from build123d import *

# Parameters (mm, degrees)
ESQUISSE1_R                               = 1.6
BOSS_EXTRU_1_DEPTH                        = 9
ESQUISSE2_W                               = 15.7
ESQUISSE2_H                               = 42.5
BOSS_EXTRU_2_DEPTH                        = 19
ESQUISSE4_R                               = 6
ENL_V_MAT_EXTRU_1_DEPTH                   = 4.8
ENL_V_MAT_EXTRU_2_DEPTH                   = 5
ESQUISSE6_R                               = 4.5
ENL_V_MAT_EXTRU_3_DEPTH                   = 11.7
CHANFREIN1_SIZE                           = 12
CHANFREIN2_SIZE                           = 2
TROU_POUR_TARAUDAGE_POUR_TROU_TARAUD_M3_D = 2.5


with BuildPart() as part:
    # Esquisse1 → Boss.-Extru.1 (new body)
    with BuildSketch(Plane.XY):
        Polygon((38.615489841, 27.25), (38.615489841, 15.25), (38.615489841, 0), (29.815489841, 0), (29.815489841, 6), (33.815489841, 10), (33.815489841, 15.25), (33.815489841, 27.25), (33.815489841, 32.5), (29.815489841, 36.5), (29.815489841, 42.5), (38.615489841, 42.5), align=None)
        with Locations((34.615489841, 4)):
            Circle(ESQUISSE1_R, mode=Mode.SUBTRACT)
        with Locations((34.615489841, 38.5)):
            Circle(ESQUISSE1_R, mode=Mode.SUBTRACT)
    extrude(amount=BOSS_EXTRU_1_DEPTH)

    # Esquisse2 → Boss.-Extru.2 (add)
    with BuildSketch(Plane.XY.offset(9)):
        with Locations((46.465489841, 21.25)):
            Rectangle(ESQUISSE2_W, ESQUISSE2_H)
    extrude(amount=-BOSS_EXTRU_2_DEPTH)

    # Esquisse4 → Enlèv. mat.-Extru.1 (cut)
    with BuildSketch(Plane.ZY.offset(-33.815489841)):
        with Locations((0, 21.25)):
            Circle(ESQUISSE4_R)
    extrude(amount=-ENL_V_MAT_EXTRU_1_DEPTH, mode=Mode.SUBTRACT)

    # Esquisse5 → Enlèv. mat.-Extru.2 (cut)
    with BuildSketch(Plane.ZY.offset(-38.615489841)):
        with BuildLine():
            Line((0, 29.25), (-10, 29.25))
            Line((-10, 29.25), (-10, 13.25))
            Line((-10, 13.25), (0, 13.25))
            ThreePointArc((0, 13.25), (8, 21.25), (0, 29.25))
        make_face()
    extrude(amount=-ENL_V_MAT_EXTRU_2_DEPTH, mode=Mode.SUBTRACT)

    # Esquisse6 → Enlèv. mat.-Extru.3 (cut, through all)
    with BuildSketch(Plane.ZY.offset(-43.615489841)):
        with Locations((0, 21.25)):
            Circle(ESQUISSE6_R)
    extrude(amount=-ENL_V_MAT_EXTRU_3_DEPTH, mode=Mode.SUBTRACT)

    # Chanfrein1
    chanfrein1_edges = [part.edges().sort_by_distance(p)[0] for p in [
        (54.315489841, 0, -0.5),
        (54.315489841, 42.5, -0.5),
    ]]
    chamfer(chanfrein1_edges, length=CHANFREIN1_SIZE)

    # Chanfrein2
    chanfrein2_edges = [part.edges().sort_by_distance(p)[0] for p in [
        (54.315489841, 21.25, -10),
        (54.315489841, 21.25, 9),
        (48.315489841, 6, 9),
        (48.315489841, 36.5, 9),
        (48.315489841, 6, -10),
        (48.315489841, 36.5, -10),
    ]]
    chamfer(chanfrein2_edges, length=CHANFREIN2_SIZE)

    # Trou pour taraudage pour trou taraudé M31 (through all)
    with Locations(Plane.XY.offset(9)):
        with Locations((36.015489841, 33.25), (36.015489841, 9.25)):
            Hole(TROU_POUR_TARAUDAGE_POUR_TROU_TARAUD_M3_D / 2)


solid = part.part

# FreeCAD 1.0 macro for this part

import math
import FreeCAD as App
import Part
import Sketcher

V = App.Vector


def edges_at(feature, points):
    """Names of the edges that pass closest to the given points."""
    edges = feature.Shape.Edges
    near = lambda p: min(range(len(edges)), key=lambda i: edges[i].distToShape(Part.Vertex(*p))[0])
    return sorted({f"Edge{near(p) + 1}" for p in points})

doc = App.newDocument("Part")
body = doc.addObject("PartDesign::Body", "Body")

sketch1 = body.newObject("Sketcher::SketchObject", "Sketch")
sketch1.AttachmentSupport = (doc.getObject("XY_Plane"), [""])
sketch1.MapMode = "FlatFace"
sketch1.addGeometry([
    Part.LineSegment(V(38.6, 0, 0), V(38.6, 42.5, 0)),
    Part.LineSegment(V(38.6, 42.5, 0), V(29.8, 42.5, 0)),
    Part.LineSegment(V(29.8, 42.5, 0), V(29.8, 36.5, 0)),
    Part.LineSegment(V(29.8, 36.5, 0), V(33.8, 32.5, 0)),
    Part.LineSegment(V(33.8, 32.5, 0), V(33.8, 10, 0)),
    Part.LineSegment(V(33.8, 10, 0), V(29.8, 6, 0)),
    Part.LineSegment(V(29.8, 6, 0), V(29.8, 0, 0)),
    Part.LineSegment(V(29.8, 0, 0), V(38.6, 0, 0)),
    Part.Circle(V(34.6, 4, 0), V(0, 0, 1), 1.6),
    Part.Circle(V(34.6, 38.5, 0), V(0, 0, 1), 1.6),
], False)
sketch1.addConstraint([
    Sketcher.Constraint("Coincident", 0, 2, 1, 1),
    Sketcher.Constraint("Coincident", 1, 2, 2, 1),
    Sketcher.Constraint("Coincident", 2, 2, 3, 1),
    Sketcher.Constraint("Coincident", 3, 2, 4, 1),
    Sketcher.Constraint("Coincident", 4, 2, 5, 1),
    Sketcher.Constraint("Coincident", 5, 2, 6, 1),
    Sketcher.Constraint("Coincident", 6, 2, 7, 1),
    Sketcher.Constraint("Coincident", 7, 2, 0, 1),
    Sketcher.Constraint("Vertical", 0),
    Sketcher.Constraint("Horizontal", 1),
    Sketcher.Constraint("Vertical", 2),
    Sketcher.Constraint("Vertical", 4),
    Sketcher.Constraint("Vertical", 6),
    Sketcher.Constraint("Horizontal", 7),
    Sketcher.Constraint("Equal", 8, 9),
    Sketcher.Constraint("PointOnObject", 6, 2, -1),
    Sketcher.Constraint("Perpendicular", 3, 5),
    Sketcher.Constraint("Vertical", 8, 3, 9, 3),
    Sketcher.Constraint("Vertical", 2, 2, 5, 2),
    Sketcher.Constraint("Equal", 2, 6),
    Sketcher.Constraint("Equal", 3, 5),
    Sketcher.Constraint("Diameter", 8, 3.2),
    Sketcher.Constraint("DistanceY", 2, 2, 2, 1, 6.0),
    Sketcher.Constraint("DistanceX", 1, 2, 1, 1, 8.8),
    Sketcher.Constraint("DistanceY", 0, 1, 0, 2, 42.5),
    Sketcher.Constraint("DistanceY", 4, 2, 4, 1, 22.5),
    Sketcher.Constraint("DistanceY", -1, 1, 8, 3, 4.0),
    Sketcher.Constraint("DistanceX", 9, 3, 0, 2, 4.0),
    Sketcher.Constraint("DistanceY", 9, 3, 0, 2, 4.0),
    Sketcher.Constraint("DistanceX", -1, 1, 8, 3, 34.61549),
])
pad1 = body.newObject("PartDesign::Pad", "Pad")
pad1.Profile = sketch1
pad1.Length = 9

sketch2 = body.newObject("Sketcher::SketchObject", "Sketch001")
sketch2.AttachmentSupport = (doc.getObject("XY_Plane"), [""])
sketch2.MapMode = "FlatFace"
sketch2.AttachmentOffset = App.Placement(V(0, 0, 9), App.Rotation())
sketch2.addGeometry([
    Part.LineSegment(V(39, 42, 0), V(39, 0, 0)),
    Part.LineSegment(V(39, 0, 0), V(54, 0, 0)),
    Part.LineSegment(V(54, 0, 0), V(54, 42, 0)),
    Part.LineSegment(V(54, 42, 0), V(39, 42, 0)),
], False)
sketch2.addConstraint([
    Sketcher.Constraint("Coincident", 0, 2, 1, 1),
    Sketcher.Constraint("Coincident", 1, 2, 2, 1),
    Sketcher.Constraint("Coincident", 2, 2, 3, 1),
    Sketcher.Constraint("Coincident", 3, 2, 0, 1),
    Sketcher.Constraint("Vertical", 0),
    Sketcher.Constraint("Horizontal", 1),
    Sketcher.Constraint("Vertical", 2),
    Sketcher.Constraint("Horizontal", 3),
    Sketcher.Constraint("PointOnObject", 0, 2, -1),
    Sketcher.Constraint("DistanceX", 1, 1, 1, 2, 15.7),
    Sketcher.Constraint("DistanceY", 0, 2, 0, 1, 42.5),
    Sketcher.Constraint("DistanceX", -1, 1, 0, 2, 38.61549),
])
pad2 = body.newObject("PartDesign::Pad", "Pad001")
pad2.Profile = sketch2
pad2.Length = 19
pad2.Reversed = True

sketch3 = body.newObject("Sketcher::SketchObject", "Sketch002")
sketch3.AttachmentSupport = (doc.getObject("YZ_Plane"), [""])
sketch3.MapMode = "FlatFace"
sketch3.AttachmentOffset = App.Placement(V(0, 0, 33.81549), App.Rotation())
sketch3.addGeometry(Part.Circle(V(21, 0, 0), V(0, 0, 1), 6), False)
sketch3.addConstraint([
    Sketcher.Constraint("PointOnObject", 0, 3, -1),
    Sketcher.Constraint("Diameter", 0, 12.0),
    Sketcher.Constraint("DistanceX", -1, 1, 0, 3, 21.25),
])
pocket1 = body.newObject("PartDesign::Pocket", "Pocket")
pocket1.Profile = sketch3
pocket1.Length = 4.8
pocket1.Reversed = True

sketch4 = body.newObject("Sketcher::SketchObject", "Sketch003")
sketch4.AttachmentSupport = (doc.getObject("YZ_Plane"), [""])
sketch4.MapMode = "FlatFace"
sketch4.AttachmentOffset = App.Placement(V(0, 0, 38.61549), App.Rotation())
sketch4.addGeometry([
    Part.LineSegment(V(29, 0, 0), V(29, -10, 0)),
    Part.LineSegment(V(29, -10, 0), V(13, -10, 0)),
    Part.LineSegment(V(13, -10, 0), V(13, 0, 0)),
    Part.ArcOfCircle(Part.Circle(V(21, 0, 0), V(0, 0, 1), 8), math.radians(0), math.radians(180)),
], False)
sketch4.addConstraint([
    Sketcher.Constraint("Coincident", 0, 2, 1, 1),
    Sketcher.Constraint("Coincident", 1, 2, 2, 1),
    Sketcher.Constraint("Tangent", 2, 2, 3, 2),
    Sketcher.Constraint("Tangent", 3, 1, 0, 1),
    Sketcher.Constraint("Vertical", 0),
    Sketcher.Constraint("Horizontal", 1),
    Sketcher.Constraint("Vertical", 2),
    Sketcher.Constraint("PointOnObject", 3, 3, -1),
    Sketcher.Constraint("Radius", 3, 8.0),
    Sketcher.Constraint("DistanceY", 0, 2, 0, 1, 10.0),
    Sketcher.Constraint("DistanceX", -1, 1, 3, 3, 21.25),
])
pocket2 = body.newObject("PartDesign::Pocket", "Pocket001")
pocket2.Profile = sketch4
pocket2.Length = 5
pocket2.Reversed = True

sketch5 = body.newObject("Sketcher::SketchObject", "Sketch004")
sketch5.AttachmentSupport = (doc.getObject("YZ_Plane"), [""])
sketch5.MapMode = "FlatFace"
sketch5.AttachmentOffset = App.Placement(V(0, 0, 43.61549), App.Rotation())
sketch5.addGeometry(Part.Circle(V(21.2, 0, 0), V(0, 0, 1), 4.5), False)
sketch5.addConstraint([
    Sketcher.Constraint("PointOnObject", 0, 3, -1),
    Sketcher.Constraint("Diameter", 0, 9.0),
    Sketcher.Constraint("DistanceX", -1, 1, 0, 3, 21.25),
])
pocket3 = body.newObject("PartDesign::Pocket", "Pocket002")
pocket3.Profile = sketch5
pocket3.Type = "ThroughAll"
pocket3.Reversed = True
doc.recompute()

chamfer = body.newObject("PartDesign::Chamfer", "Chamfer")
chamfer.Base = (pocket3, edges_at(pocket3, [(54.315, 0, -0.5), (54.315, 42.5, -0.5)]))
chamfer.Size = 12
doc.recompute()

chamfer2 = body.newObject("PartDesign::Chamfer", "Chamfer001")
chamfer2.Base = (chamfer, edges_at(chamfer, [
    (54.315, 21.25, -10),
    (54.315, 21.25, 9),
    (48.315, 6, 9),
    (48.315, 36.5, 9),
    (48.315, 6, -10),
    (48.315, 36.5, -10),
]))
chamfer2.Size = 2

sketch6 = body.newObject("Sketcher::SketchObject", "Sketch005")
sketch6.AttachmentSupport = (doc.getObject("XY_Plane"), [""])
sketch6.MapMode = "FlatFace"
sketch6.AttachmentOffset = App.Placement(V(0, 0, 9), App.Rotation())
sketch6.addGeometry([
    Part.Circle(V(36, 33.2, 0), V(0, 0, 1), 1.2),
    Part.Circle(V(36, 9.2, 0), V(0, 0, 1), 1.2),
], False)
sketch6.addConstraint([
    Sketcher.Constraint("Equal", 0, 1),
    Sketcher.Constraint("Vertical", 0, 3, 1, 3),
    Sketcher.Constraint("Diameter", 0, 2.5),
    Sketcher.Constraint("DistanceY", 1, 3, 0, 3, 24.0),
    Sketcher.Constraint("DistanceY", -1, 1, 0, 3, 33.25),
    Sketcher.Constraint("DistanceX", -1, 1, 0, 3, 36.01549),
])
doc.recompute()
hole = body.newObject("PartDesign::Hole", "Hole")
hole.Profile = sketch6
hole.ThreadType = "None"
hole.Diameter = 2.5
hole.DepthType = "ThroughAll"

doc.recompute()
